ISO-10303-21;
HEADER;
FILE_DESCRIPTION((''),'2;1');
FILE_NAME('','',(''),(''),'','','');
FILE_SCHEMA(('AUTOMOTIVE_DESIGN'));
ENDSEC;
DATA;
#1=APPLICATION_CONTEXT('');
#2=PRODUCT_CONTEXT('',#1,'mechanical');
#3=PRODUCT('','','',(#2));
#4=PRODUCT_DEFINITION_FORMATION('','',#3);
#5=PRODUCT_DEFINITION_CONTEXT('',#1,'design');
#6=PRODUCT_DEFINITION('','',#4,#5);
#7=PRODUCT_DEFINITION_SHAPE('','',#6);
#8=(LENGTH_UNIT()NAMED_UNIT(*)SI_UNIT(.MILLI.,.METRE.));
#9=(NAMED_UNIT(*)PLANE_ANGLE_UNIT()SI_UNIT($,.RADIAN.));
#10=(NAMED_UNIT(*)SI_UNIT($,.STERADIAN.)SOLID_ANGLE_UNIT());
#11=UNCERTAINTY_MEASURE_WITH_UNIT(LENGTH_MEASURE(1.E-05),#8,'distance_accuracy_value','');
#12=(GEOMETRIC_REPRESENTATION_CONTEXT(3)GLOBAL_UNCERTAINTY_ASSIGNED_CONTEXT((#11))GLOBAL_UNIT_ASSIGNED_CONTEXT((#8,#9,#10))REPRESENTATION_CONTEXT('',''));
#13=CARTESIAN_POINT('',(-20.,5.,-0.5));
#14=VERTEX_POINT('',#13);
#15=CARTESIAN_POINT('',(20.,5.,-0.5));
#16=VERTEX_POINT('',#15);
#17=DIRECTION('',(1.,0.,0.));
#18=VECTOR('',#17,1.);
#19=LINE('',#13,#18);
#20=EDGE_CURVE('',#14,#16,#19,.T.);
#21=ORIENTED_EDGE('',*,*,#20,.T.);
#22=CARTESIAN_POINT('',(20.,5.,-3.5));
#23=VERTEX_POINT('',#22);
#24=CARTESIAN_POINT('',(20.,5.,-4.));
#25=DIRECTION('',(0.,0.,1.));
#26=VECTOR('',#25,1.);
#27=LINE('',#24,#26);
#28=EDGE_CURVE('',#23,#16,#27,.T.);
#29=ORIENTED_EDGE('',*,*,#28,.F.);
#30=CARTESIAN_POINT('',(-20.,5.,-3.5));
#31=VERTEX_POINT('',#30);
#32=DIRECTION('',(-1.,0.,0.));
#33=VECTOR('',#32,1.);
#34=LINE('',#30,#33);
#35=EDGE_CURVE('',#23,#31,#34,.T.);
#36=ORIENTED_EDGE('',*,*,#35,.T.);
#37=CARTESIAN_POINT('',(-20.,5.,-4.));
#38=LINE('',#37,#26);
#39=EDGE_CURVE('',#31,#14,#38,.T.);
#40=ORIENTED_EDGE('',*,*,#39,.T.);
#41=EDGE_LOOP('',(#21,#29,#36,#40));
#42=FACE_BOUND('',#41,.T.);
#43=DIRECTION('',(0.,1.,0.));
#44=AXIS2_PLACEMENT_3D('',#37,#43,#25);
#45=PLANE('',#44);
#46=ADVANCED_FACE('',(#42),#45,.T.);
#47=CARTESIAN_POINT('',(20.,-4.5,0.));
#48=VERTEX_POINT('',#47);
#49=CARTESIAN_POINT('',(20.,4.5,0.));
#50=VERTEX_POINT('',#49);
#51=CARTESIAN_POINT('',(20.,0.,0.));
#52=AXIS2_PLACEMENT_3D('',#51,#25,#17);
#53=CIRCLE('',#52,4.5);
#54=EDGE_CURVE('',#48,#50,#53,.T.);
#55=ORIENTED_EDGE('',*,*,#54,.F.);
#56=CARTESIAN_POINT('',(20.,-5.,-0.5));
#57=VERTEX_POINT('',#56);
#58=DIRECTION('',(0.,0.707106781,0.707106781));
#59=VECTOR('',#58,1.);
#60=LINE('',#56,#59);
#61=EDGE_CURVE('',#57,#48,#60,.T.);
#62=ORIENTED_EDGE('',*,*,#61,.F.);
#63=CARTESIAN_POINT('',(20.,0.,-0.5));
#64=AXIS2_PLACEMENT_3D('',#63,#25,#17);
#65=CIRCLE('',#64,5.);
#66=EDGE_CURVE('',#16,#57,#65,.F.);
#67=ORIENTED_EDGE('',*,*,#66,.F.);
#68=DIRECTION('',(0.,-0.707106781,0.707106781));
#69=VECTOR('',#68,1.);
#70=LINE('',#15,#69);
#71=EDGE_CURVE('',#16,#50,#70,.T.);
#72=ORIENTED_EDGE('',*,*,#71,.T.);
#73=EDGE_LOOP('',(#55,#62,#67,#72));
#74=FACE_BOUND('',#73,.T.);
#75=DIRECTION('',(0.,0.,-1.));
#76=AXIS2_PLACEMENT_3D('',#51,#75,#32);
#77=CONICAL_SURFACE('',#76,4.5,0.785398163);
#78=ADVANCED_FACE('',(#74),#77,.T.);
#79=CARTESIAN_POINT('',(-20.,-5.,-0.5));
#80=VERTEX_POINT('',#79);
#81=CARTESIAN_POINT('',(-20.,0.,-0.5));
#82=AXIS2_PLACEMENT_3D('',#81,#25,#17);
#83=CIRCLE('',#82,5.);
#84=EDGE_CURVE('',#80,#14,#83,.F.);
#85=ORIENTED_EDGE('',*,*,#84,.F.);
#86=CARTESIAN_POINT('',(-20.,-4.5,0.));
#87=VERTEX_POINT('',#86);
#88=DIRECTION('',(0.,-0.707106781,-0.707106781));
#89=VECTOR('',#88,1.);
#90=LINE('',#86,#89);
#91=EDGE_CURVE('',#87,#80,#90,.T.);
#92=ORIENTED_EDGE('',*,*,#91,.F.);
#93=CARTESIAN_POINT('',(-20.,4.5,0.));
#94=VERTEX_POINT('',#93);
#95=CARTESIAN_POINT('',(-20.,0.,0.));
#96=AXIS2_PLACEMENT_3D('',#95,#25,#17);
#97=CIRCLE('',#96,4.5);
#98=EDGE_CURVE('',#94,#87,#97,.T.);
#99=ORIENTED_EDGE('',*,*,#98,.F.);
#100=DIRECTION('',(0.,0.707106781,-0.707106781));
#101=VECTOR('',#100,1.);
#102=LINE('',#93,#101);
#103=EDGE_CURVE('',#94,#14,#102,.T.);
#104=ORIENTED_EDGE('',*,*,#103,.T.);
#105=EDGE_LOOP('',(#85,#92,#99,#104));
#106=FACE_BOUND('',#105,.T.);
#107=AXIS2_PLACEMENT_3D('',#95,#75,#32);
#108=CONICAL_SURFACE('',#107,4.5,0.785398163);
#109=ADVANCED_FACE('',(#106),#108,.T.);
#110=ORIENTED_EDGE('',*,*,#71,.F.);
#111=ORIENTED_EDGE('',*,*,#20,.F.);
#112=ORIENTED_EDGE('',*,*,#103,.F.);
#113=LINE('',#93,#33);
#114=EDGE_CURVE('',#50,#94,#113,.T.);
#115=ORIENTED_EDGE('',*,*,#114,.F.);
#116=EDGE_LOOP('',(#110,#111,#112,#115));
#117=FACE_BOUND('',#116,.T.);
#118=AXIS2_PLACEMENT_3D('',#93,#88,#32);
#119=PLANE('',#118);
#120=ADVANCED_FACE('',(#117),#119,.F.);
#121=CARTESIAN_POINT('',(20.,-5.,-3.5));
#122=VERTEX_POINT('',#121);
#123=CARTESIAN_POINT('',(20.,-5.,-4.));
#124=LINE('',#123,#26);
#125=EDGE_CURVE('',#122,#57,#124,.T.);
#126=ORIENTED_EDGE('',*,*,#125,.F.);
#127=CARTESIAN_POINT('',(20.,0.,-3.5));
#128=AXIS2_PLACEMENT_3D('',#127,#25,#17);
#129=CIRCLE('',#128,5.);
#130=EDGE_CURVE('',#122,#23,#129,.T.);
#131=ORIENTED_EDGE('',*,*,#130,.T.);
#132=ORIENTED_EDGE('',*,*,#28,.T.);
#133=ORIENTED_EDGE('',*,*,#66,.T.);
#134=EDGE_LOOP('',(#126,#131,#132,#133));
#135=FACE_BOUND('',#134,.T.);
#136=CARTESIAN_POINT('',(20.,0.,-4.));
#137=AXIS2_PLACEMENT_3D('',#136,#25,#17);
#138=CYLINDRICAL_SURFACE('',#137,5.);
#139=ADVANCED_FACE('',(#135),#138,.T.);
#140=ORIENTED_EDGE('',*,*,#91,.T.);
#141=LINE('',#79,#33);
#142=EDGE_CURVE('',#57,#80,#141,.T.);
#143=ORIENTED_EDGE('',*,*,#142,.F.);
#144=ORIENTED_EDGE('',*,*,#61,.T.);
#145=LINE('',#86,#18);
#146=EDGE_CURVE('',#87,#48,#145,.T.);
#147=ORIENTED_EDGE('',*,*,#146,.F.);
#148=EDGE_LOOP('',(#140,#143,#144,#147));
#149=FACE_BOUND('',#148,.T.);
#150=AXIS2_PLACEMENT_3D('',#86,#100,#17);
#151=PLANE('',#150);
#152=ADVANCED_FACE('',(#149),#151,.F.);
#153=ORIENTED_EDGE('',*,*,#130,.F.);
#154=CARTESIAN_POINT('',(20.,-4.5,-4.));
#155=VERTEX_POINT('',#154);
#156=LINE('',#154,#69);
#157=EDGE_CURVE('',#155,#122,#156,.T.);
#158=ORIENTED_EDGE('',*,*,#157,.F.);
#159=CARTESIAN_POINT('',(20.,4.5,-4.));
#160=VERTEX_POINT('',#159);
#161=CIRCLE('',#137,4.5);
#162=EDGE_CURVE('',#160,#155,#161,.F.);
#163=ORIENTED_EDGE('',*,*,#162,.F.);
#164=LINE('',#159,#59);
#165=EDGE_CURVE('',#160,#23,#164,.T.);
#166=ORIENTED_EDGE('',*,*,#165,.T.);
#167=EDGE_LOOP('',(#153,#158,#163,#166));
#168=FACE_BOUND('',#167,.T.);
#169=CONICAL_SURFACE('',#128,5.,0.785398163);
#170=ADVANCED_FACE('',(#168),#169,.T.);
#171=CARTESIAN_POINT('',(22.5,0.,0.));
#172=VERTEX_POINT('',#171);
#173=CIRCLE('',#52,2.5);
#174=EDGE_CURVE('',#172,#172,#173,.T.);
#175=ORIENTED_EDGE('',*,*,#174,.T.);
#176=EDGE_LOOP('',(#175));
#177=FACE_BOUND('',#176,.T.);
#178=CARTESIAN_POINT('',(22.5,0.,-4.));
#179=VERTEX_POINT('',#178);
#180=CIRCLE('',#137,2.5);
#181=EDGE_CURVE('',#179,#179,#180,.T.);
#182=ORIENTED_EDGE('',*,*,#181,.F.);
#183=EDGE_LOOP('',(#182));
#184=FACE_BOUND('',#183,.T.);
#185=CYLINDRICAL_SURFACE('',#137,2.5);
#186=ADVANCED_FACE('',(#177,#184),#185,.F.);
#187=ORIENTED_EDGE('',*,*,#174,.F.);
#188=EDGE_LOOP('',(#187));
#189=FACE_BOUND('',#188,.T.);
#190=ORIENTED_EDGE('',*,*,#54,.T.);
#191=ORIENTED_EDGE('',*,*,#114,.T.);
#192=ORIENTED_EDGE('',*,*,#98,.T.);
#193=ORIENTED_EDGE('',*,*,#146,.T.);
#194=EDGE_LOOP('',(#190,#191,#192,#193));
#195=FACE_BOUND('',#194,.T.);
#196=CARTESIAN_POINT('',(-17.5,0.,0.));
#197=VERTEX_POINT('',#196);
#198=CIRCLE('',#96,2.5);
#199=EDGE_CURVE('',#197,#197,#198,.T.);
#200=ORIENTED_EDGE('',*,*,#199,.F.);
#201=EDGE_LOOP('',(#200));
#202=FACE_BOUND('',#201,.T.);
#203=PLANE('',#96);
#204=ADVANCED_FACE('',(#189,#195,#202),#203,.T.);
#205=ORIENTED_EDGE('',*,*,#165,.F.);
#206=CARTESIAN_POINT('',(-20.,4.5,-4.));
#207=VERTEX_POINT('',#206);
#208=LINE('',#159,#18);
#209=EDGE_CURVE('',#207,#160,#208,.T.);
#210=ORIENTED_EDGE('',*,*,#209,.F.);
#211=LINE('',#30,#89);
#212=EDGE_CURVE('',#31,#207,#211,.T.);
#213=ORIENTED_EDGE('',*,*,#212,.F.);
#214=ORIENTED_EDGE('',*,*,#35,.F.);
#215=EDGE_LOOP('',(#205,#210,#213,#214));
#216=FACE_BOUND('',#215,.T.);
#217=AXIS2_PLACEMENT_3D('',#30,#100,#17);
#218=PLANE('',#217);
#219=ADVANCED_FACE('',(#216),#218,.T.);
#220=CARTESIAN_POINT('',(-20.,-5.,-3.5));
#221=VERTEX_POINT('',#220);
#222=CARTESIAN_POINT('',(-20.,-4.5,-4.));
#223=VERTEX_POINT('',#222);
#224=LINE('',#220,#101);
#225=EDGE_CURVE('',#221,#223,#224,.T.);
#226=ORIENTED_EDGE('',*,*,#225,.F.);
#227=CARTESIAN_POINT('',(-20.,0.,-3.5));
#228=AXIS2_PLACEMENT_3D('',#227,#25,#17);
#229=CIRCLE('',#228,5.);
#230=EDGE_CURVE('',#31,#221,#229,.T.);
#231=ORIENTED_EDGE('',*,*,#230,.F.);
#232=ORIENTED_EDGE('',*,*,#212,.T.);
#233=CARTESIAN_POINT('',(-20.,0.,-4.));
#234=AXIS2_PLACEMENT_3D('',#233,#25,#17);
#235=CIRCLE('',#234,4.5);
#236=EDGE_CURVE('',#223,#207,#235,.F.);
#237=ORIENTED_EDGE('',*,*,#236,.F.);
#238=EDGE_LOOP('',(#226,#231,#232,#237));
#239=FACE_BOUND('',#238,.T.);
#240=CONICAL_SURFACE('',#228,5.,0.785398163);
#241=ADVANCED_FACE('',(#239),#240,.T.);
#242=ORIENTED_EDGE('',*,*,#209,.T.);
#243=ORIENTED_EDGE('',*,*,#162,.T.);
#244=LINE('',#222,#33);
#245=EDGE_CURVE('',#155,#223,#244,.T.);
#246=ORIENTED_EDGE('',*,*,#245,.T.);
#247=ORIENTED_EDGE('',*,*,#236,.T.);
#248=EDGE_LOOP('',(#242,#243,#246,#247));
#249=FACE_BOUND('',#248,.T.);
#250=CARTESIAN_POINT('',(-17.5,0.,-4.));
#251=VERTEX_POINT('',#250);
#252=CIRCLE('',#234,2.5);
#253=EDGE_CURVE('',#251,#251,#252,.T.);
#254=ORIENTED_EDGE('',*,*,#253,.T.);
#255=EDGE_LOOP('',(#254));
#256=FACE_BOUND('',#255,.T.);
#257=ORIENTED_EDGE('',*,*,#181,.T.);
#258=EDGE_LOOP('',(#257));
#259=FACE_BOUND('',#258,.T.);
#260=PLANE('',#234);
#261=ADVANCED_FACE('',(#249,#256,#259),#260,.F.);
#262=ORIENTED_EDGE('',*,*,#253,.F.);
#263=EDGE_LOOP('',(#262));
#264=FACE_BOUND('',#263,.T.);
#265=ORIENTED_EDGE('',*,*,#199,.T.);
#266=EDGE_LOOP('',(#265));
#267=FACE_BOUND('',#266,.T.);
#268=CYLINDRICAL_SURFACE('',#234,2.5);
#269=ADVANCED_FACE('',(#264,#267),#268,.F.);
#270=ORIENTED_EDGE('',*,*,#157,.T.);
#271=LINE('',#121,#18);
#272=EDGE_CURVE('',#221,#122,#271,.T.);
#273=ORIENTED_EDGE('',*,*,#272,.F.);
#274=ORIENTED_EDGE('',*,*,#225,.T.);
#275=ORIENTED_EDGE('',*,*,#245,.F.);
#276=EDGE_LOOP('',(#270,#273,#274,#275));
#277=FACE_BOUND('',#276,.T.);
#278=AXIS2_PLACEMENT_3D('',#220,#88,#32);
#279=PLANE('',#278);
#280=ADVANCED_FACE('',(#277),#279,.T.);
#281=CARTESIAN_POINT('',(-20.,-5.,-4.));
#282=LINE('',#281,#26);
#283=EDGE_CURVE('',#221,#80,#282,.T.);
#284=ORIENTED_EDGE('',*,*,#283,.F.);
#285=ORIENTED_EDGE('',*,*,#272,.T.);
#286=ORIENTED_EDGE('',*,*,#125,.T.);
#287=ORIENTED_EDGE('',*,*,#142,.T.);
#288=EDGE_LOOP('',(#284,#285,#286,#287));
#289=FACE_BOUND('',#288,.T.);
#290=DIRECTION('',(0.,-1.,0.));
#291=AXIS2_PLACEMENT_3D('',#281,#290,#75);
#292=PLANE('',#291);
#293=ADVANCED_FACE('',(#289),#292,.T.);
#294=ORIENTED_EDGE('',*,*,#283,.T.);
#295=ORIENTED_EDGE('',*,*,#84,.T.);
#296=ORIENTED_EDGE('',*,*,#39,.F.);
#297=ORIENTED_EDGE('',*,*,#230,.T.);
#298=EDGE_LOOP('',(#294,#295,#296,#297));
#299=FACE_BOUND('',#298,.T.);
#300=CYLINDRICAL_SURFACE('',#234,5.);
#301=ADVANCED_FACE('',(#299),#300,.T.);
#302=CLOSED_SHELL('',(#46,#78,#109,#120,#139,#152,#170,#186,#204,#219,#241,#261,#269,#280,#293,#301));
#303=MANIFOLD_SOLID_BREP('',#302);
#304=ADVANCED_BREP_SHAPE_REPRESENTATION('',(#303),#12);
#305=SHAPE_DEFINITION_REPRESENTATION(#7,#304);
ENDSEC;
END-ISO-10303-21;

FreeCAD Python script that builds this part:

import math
import FreeCAD as App
import Part
import Sketcher

V = App.Vector
Q = App.Units.Quantity


def edges_at(feature, points):
    """Names of the edges that pass closest to the given points."""
    edges = feature.Shape.Edges
    near = lambda p: min(range(len(edges)), key=lambda i: edges[i].distToShape(Part.Vertex(*p))[0])
    return sorted({f"Edge{near(p) + 1}" for p in points})

doc = App.newDocument("Part")
body = doc.addObject("PartDesign::Body", "Body")

sketch1 = body.newObject("Sketcher::SketchObject", "Sketch")
sketch1.AttachmentSupport = (doc.getObject("XY_Plane"), [""])
sketch1.MapMode = "FlatFace"
sketch1.addGeometry([
    Part.LineSegment(V(20, 5, 0), V(-20, 5, 0)),
    Part.ArcOfCircle(Part.Circle(V(-20, 0, 0), V(0, 0, 1), 5), math.radians(90), math.radians(270)),
    Part.LineSegment(V(-20, -5, 0), V(20, -5, 0)),
    Part.ArcOfCircle(Part.Circle(V(20, 0, 0), V(0, 0, 1), 5), math.radians(-90), math.radians(90)),
    Part.Circle(V(20, 0, 0), V(0, 0, 1), 2.5),
    Part.Circle(V(-20, 0, 0), V(0, 0, 1), 2.5),
], False)
sketch1.addConstraint([
    Sketcher.Constraint("Tangent", 0, 2, 1, 1),
    Sketcher.Constraint("Tangent", 1, 2, 2, 1),
    Sketcher.Constraint("Tangent", 2, 2, 3, 1),
    Sketcher.Constraint("Tangent", 3, 2, 0, 1),
    Sketcher.Constraint("Horizontal", 0),
    Sketcher.Constraint("Horizontal", 2),
    Sketcher.Constraint("Coincident", 4, 3, 3, 3),
    Sketcher.Constraint("Coincident", 5, 3, 1, 3),
    Sketcher.Constraint("Equal", 4, 5),
    Sketcher.Constraint("Symmetric", 1, 3, 3, 3, -1, 1),
    Sketcher.Constraint("Diameter", 4, Q("5 mm")),
    Sketcher.Constraint("Radius", 1, Q("5 mm")),
    Sketcher.Constraint("DistanceX", 0, 2, 0, 1, Q("40 mm")),
])
pad1 = body.newObject("PartDesign::Pad", "Pad")
pad1.Profile = sketch1
pad1.Length = 4
pad1.Reversed = True
doc.recompute()

chamfer = body.newObject("PartDesign::Chamfer", "Chamfer")
chamfer.Base = (pad1, edges_at(pad1, [
    (25, 0, -4),
    (0, 5, -4),
    (-25, 0, -4),
    (0, 5, 0),
    (25, 0, 0),
    (0, -5, 0),
    (-25, 0, 0),
    (0, -5, -4),
]))
chamfer.Size = 0.5

doc.recompute()
